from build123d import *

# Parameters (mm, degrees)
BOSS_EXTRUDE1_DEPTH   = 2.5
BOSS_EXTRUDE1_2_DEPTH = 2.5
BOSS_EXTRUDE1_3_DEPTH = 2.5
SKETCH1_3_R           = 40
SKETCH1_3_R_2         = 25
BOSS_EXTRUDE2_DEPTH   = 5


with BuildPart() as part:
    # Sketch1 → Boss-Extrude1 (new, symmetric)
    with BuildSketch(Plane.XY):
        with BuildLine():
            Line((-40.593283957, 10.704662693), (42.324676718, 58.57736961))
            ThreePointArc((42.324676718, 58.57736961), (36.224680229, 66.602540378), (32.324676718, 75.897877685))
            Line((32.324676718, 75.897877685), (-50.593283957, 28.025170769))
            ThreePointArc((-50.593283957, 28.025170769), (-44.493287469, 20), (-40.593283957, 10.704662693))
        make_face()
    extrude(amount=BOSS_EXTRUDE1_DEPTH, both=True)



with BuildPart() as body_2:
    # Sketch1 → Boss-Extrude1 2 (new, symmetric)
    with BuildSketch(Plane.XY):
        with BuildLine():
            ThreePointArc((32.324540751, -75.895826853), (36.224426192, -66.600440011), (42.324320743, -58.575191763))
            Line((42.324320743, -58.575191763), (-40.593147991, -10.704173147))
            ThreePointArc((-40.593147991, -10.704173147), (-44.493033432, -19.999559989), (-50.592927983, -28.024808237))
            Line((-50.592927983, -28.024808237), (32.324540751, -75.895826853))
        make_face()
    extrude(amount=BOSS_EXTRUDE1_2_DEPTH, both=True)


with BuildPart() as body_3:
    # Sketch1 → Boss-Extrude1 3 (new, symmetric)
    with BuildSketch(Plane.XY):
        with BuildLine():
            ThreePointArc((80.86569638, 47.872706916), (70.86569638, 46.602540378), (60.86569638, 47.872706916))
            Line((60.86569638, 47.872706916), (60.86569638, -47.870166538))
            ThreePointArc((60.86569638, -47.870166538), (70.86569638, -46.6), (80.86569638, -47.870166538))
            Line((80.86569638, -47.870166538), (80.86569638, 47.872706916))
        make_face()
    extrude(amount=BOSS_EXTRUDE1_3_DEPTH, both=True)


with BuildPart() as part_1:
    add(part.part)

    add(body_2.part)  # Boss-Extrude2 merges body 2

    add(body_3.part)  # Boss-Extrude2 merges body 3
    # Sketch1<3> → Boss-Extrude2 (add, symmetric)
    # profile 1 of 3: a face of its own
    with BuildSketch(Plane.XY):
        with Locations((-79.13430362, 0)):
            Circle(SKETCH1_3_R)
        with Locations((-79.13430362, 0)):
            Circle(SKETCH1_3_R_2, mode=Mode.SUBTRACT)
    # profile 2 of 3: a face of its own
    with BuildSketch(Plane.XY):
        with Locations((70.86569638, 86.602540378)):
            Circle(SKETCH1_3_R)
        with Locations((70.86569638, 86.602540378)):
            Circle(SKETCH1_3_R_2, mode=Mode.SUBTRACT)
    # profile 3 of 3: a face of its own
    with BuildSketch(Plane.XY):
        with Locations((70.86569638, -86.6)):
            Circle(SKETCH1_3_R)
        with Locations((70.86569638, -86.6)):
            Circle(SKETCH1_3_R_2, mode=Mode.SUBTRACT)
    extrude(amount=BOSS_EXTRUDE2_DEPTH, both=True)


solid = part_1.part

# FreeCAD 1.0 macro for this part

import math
import FreeCAD as App
import Part
import Sketcher

V = App.Vector
Q = App.Units.Quantity

doc = App.newDocument("Part")
body = doc.addObject("PartDesign::Body", "Body")

sketch1 = body.newObject("Sketcher::SketchObject", "Sketch")
sketch1.AttachmentSupport = (doc.getObject("XY_Plane"), [""])
sketch1.MapMode = "FlatFace"
sketch1.addGeometry([
    Part.LineSegment(V(-41, 11, 0), V(42, 59, 0)),
    Part.ArcOfCircle(Part.Circle(V(71, 87, 0), V(0, 0, 1), 40), math.radians(-164), math.radians(-136)),
    Part.LineSegment(V(32, 76, 0), V(-51, 28, 0)),
    Part.ArcOfCircle(Part.Circle(V(-79, 0, 0), V(0, 0, 1), 40), math.radians(16), math.radians(44)),
], False)
sketch1.addConstraint([
    Sketcher.Constraint("Coincident", 0, 2, 1, 2),
    Sketcher.Constraint("Coincident", 1, 1, 2, 1),
    Sketcher.Constraint("Coincident", 2, 2, 3, 2),
    Sketcher.Constraint("Coincident", 3, 1, 0, 1),
    Sketcher.Constraint("Equal", 1, 3),
    Sketcher.Constraint("PointOnObject", 3, 3, -1),
    Sketcher.Constraint("Parallel", 0, 2),
    Sketcher.Constraint("Equal", 0, 2),
    Sketcher.Constraint("Radius", 1, 40.0),
    Sketcher.Constraint("Angle", 0, Q("30 deg")),
    Sketcher.Constraint("DistanceX", 3, 3, 1, 3, 150.0),
    Sketcher.Constraint("DistanceX", 1, 1, 0, 2, 10.0),
    Sketcher.Constraint("DistanceY", 2, 2, 0, 2, 30.552199),
    Sketcher.Constraint("DistanceX", -1, 1, 1, 3, 70.865696),
])
pad1 = body.newObject("PartDesign::Pad", "Pad")
pad1.Profile = sketch1
pad1.Length = 5
pad1.Midplane = True
body2 = doc.addObject("PartDesign::Body", "Body001")

sketch2 = body2.newObject("Sketcher::SketchObject", "Sketch001")
sketch2.AttachmentSupport = (doc.getObject("XY_Plane001"), [""])
sketch2.MapMode = "FlatFace"
sketch2.addGeometry([
    Part.ArcOfCircle(Part.Circle(V(71, -87, 0), V(0, 0, 1), 40), math.radians(136), math.radians(164)),
    Part.LineSegment(V(42, -59, 0), V(-41, -11, 0)),
    Part.ArcOfCircle(Part.Circle(V(-79, 0, 0), V(0, 0, 1), 40), math.radians(-44), math.radians(-16)),
    Part.LineSegment(V(-51, -28, 0), V(32, -76, 0)),
], False)
sketch2.addConstraint([
    Sketcher.Constraint("Coincident", 0, 1, 1, 1),
    Sketcher.Constraint("Coincident", 1, 2, 2, 2),
    Sketcher.Constraint("Coincident", 2, 1, 3, 1),
    Sketcher.Constraint("Coincident", 3, 2, 0, 2),
    Sketcher.Constraint("Equal", 0, 2),
    Sketcher.Constraint("PointOnObject", 2, 3, -1),
    Sketcher.Constraint("Parallel", 1, 3),
    Sketcher.Constraint("Equal", 1, 3),
    Sketcher.Constraint("Radius", 0, 40.0),
    Sketcher.Constraint("DistanceX", 2, 3, 0, 3, 150.0),
    Sketcher.Constraint("DistanceY", 0, 3, -1, 1, 86.6),
    Sketcher.Constraint("DistanceX", -1, 1, 0, 1, 42.324321),
    Sketcher.Constraint("DistanceY", 0, 1, -1, 1, 58.575192),
    Sketcher.Constraint("DistanceX", -1, 1, 3, 2, 32.324541),
])
pad2 = body2.newObject("PartDesign::Pad", "Pad001")
pad2.Profile = sketch2
pad2.Length = 5
pad2.Midplane = True
body3 = doc.addObject("PartDesign::Body", "Body002")

sketch3 = body3.newObject("Sketcher::SketchObject", "Sketch002")
sketch3.AttachmentSupport = (doc.getObject("XY_Plane002"), [""])
sketch3.MapMode = "FlatFace"
sketch3.addGeometry([
    Part.ArcOfCircle(Part.Circle(V(71, 87, 0), V(0, 0, 1), 40), math.radians(-104), math.radians(-76)),
    Part.LineSegment(V(61, 48, 0), V(61, -48, 0)),
    Part.ArcOfCircle(Part.Circle(V(71, -87, 0), V(0, 0, 1), 40), math.radians(76), math.radians(104)),
    Part.LineSegment(V(81, -48, 0), V(81, 48, 0)),
], False)
sketch3.addConstraint([
    Sketcher.Constraint("Coincident", 0, 1, 1, 1),
    Sketcher.Constraint("Coincident", 1, 2, 2, 2),
    Sketcher.Constraint("Coincident", 2, 1, 3, 1),
    Sketcher.Constraint("Coincident", 3, 2, 0, 2),
    Sketcher.Constraint("Vertical", 1),
    Sketcher.Constraint("Vertical", 3),
    Sketcher.Constraint("Equal", 0, 2),
    Sketcher.Constraint("Horizontal", 1, 2, 2, 1),
    Sketcher.Constraint("Horizontal", 0, 1, 3, 2),
    Sketcher.Constraint("Radius", 0, 40.0),
    Sketcher.Constraint("DistanceX", 0, 1, 0, 3, 10.0),
    Sketcher.Constraint("DistanceY", 2, 3, -1, 1, 86.6),
    Sketcher.Constraint("DistanceY", 1, 2, 1, 1, 95.742873),
    Sketcher.Constraint("DistanceX", -1, 1, 0, 3, 70.865696),
])
pad3 = body3.newObject("PartDesign::Pad", "Pad002")
pad3.Profile = sketch3
pad3.Length = 5
pad3.Midplane = True
body.AllowCompound = True
doc.recompute()

boolean = body.newObject("PartDesign::Boolean", "Boolean")
boolean.Type = "Fuse"
boolean.addObjects([body2])
doc.recompute()

boolean2 = body.newObject("PartDesign::Boolean", "Boolean001")
boolean2.Type = "Fuse"
boolean2.addObjects([body3])

sketch4 = body.newObject("Sketcher::SketchObject", "Sketch003")
sketch4.AttachmentSupport = (doc.getObject("XY_Plane"), [""])
sketch4.MapMode = "FlatFace"
sketch4.addGeometry([
    Part.Circle(V(-79, 0, 0), V(0, 0, 1), 40),
    Part.Circle(V(-79, 0, 0), V(0, 0, 1), 25),
    Part.Circle(V(71, 87, 0), V(0, 0, 1), 40),
    Part.Circle(V(71, 87, 0), V(0, 0, 1), 25),
    Part.Circle(V(71, -87, 0), V(0, 0, 1), 40),
    Part.Circle(V(71, -87, 0), V(0, 0, 1), 25),
], False)
sketch4.addConstraint([
    Sketcher.Constraint("Coincident", 1, 3, 0, 3),
    Sketcher.Constraint("Coincident", 3, 3, 2, 3),
    Sketcher.Constraint("Coincident", 5, 3, 4, 3),
    Sketcher.Constraint("Equal", 0, 2),
    Sketcher.Constraint("Equal", 1, 3),
    Sketcher.Constraint("Equal", 2, 4),
    Sketcher.Constraint("Equal", 3, 5),
    Sketcher.Constraint("PointOnObject", 0, 3, -1),
    Sketcher.Constraint("Vertical", 3, 3, 4, 3),
    Sketcher.Constraint("Diameter", 0, 80.0),
    Sketcher.Constraint("Diameter", 1, 50.0),
    Sketcher.Constraint("DistanceX", 0, 3, 2, 3, 150.0),
    Sketcher.Constraint("DistanceY", 4, 3, -1, 1, 86.6),
    Sketcher.Constraint("DistanceY", -1, 1, 2, 3, 86.60254),
    Sketcher.Constraint("DistanceX", 0, 3, -1, 1, 79.134304),
])
pad4 = body.newObject("PartDesign::Pad", "Pad003")
pad4.Profile = sketch4
pad4.Length = 10
pad4.Midplane = True

doc.recompute()
